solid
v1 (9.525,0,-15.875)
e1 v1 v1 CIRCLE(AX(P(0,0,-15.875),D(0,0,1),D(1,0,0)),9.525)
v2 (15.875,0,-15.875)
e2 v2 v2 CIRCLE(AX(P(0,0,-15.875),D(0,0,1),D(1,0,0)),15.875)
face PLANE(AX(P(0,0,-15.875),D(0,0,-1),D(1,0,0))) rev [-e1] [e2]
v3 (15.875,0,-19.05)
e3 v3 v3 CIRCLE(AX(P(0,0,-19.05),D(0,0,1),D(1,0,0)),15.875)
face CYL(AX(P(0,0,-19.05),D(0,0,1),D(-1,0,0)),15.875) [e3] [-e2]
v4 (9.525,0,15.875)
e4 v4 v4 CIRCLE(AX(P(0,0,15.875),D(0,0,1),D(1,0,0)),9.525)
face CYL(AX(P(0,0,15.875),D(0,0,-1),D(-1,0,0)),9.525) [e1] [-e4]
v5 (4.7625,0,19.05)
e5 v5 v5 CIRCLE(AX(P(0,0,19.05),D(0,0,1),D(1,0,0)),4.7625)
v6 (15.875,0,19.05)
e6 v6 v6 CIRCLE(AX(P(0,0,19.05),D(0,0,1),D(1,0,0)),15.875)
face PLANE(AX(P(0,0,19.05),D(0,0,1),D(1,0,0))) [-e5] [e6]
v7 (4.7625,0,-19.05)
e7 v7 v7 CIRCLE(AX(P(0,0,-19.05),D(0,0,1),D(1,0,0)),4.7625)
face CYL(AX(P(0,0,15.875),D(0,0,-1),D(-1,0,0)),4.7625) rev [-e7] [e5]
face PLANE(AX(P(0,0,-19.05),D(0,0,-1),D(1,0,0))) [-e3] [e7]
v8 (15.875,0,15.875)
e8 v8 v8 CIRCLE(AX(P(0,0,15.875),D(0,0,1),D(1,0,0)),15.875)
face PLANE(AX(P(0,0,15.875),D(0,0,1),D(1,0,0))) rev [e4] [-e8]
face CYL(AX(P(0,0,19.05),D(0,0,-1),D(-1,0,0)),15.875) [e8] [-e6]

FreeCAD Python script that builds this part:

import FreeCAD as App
import Part
import Sketcher
from FreeCAD import Vector
Q = App.Units.Quantity

doc = App.newDocument("Part")
body = doc.addObject("PartDesign::Body", "Body")

# Sketch on XY plane
sketch1 = body.newObject("Sketcher::SketchObject", "Sketch")
sketch1.AttachmentSupport = (doc.getObject("XY_Plane"), [""])
sketch1.MapMode = "FlatFace"
sketch1.addGeometry([
    Part.Circle(Vector(0, 0, 0), Vector(0, 0, 1), 9.525),
    Part.Circle(Vector(0, 0, 0), Vector(0, 0, 1), 4.7625),
], False)
sketch1.addConstraint([
    Sketcher.Constraint("Coincident", 0, 3, -1, 1),
    Sketcher.Constraint("Coincident", 1, 3, -1, 1),
    Sketcher.Constraint("Diameter", 0, Q("0.75 in")),
    Sketcher.Constraint("Diameter", 1, Q("0.375 in")),
])
pad1 = body.newObject("PartDesign::Pad", "Pad")
pad1.Profile = sketch1
pad1.Length = Q("0.625 in")

# Sketch on XY plane
sketch2 = body.newObject("Sketcher::SketchObject", "Sketch001")
sketch2.AttachmentSupport = (doc.getObject("XY_Plane"), [""])
sketch2.MapMode = "FlatFace"
sketch2.AttachmentOffset = App.Placement(Vector(0, 0, 0.625 * 25.4), App.Rotation())
sketch2.addGeometry([
    Part.Circle(Vector(0, 0, 0), Vector(0, 0, 1), 15.875),
    Part.Circle(Vector(0, 0, 0), Vector(0, 0, 1), 4.7625),
], False)
sketch2.addConstraint([
    Sketcher.Constraint("Coincident", 0, 3, -1, 1),
    Sketcher.Constraint("Coincident", 1, 3, -1, 1),
    Sketcher.Constraint("Diameter", 0, Q("1.25 in")),
    Sketcher.Constraint("Diameter", 1, Q("0.375 in")),
])
pad2 = body.newObject("PartDesign::Pad", "Pad001")
pad2.Profile = sketch2
pad2.Length = Q("0.125 in")
body2 = doc.addObject("PartDesign::Body", "Body001")
doc.recompute()

body2.BaseFeature = body
doc.recompute()

mirroring = doc.addObject("Part::Mirroring", "Mirroring")
mirroring.Source = body
mirroring.Base = Vector(0, 0, 0)
mirroring.Normal = Vector(0, 0, 1)
body3 = doc.addObject("PartDesign::Body", "Body002")
body3.BaseFeature = mirroring
boolean = body2.newObject("PartDesign::Boolean", "Boolean")
boolean.Type = "Fuse"
boolean.addObjects([body3])
doc.recompute()
mirroring.Visibility = False

doc.recompute()
